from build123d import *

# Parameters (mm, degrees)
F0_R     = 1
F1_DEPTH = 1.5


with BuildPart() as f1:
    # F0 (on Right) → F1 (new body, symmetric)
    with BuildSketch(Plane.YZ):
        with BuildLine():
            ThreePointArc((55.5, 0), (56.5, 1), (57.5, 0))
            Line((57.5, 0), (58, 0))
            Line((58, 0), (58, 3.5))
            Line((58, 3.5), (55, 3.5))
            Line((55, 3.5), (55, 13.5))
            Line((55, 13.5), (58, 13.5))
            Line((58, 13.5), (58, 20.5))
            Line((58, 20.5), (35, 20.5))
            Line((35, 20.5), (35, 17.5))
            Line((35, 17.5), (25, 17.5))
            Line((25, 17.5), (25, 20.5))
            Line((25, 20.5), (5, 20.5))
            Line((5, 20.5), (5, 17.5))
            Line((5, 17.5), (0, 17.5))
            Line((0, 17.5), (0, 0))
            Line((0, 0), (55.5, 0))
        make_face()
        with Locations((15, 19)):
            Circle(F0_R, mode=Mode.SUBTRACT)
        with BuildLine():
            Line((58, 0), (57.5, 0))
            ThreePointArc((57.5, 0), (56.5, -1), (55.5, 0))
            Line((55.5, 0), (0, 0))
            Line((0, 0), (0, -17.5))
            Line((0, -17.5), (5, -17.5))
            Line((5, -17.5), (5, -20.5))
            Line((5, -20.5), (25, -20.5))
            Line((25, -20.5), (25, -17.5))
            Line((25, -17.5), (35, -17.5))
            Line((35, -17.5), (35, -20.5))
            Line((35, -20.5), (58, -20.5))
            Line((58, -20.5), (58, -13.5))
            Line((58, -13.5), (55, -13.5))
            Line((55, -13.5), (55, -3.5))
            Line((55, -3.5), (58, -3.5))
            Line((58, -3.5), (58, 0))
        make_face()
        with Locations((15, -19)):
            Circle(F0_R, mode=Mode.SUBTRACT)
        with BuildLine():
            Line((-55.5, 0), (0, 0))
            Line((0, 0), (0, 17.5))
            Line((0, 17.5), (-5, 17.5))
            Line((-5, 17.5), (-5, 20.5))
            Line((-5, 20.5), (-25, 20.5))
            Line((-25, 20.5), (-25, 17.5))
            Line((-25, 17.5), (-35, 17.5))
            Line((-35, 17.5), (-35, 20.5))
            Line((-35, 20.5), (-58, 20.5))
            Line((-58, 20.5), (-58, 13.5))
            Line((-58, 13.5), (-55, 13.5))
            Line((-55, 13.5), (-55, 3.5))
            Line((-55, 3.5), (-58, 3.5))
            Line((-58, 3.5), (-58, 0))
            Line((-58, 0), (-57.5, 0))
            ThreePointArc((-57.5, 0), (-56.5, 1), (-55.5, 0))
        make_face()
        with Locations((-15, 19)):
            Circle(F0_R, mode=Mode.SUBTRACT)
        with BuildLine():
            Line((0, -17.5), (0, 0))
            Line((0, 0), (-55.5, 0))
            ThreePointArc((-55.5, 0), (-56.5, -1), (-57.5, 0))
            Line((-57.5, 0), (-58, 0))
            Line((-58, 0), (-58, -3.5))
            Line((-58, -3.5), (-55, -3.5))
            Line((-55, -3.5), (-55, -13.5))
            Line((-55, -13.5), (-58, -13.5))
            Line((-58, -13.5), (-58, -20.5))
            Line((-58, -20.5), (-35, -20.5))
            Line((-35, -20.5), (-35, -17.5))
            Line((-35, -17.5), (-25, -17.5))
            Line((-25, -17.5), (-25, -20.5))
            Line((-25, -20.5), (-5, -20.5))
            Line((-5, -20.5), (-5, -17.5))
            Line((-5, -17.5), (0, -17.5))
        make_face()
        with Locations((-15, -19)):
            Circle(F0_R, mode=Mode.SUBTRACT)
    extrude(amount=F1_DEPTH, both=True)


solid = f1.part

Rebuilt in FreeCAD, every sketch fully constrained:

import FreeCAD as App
import Part
import Sketcher
Q = App.Units.Quantity

doc = App.newDocument("Part")
body = doc.addObject("PartDesign::Body", "Body")

# Sketch on YZ plane
sketch1 = doc.addObject("Sketcher::SketchObject", "Sketch")
body.addObject(sketch1)
sketch1.AttachmentSupport = (doc.YZ_Plane, [""])
sketch1.MapMode = "FlatFace"
sketch1.addGeometry(Part.LineSegment(App.Vector(5, -17.5, 0), App.Vector(5, -20.5, 0)), False)
sketch1.addGeometry(Part.LineSegment(App.Vector(5, -20.5, 0), App.Vector(25, -20.5, 0)), False)
sketch1.addGeometry(Part.LineSegment(App.Vector(25, -20.5, 0), App.Vector(25, -17.5, 0)), False)
sketch1.addGeometry(Part.LineSegment(App.Vector(25, -17.5, 0), App.Vector(35, -17.5, 0)), False)
sketch1.addGeometry(Part.LineSegment(App.Vector(35, -17.5, 0), App.Vector(35, -20.5, 0)), False)
sketch1.addGeometry(Part.LineSegment(App.Vector(35, -20.5, 0), App.Vector(58, -20.5, 0)), False)
sketch1.addGeometry(Part.LineSegment(App.Vector(58, -20.5, 0), App.Vector(58, -13.5, 0)), False)
sketch1.addGeometry(Part.LineSegment(App.Vector(58, -13.5, 0), App.Vector(55, -13.5, 0)), False)
sketch1.addGeometry(Part.LineSegment(App.Vector(55, -13.5, 0), App.Vector(55, -3.5, 0)), False)
sketch1.addGeometry(Part.LineSegment(App.Vector(55, -3.5, 0), App.Vector(58, -3.5, 0)), False)
sketch1.addGeometry(Part.LineSegment(App.Vector(58, -3.5, 0), App.Vector(58, 3.5, 0)), False)
sketch1.addGeometry(Part.LineSegment(App.Vector(58, 3.5, 0), App.Vector(55, 3.5, 0)), False)
sketch1.addGeometry(Part.LineSegment(App.Vector(55, 3.5, 0), App.Vector(55, 13.5, 0)), False)
sketch1.addGeometry(Part.LineSegment(App.Vector(55, 13.5, 0), App.Vector(58, 13.5, 0)), False)
sketch1.addGeometry(Part.LineSegment(App.Vector(58, 13.5, 0), App.Vector(58, 20.5, 0)), False)
sketch1.addGeometry(Part.LineSegment(App.Vector(58, 20.5, 0), App.Vector(35, 20.5, 0)), False)
sketch1.addGeometry(Part.LineSegment(App.Vector(35, 20.5, 0), App.Vector(35, 17.5, 0)), False)
sketch1.addGeometry(Part.LineSegment(App.Vector(35, 17.5, 0), App.Vector(25, 17.5, 0)), False)
sketch1.addGeometry(Part.LineSegment(App.Vector(25, 17.5, 0), App.Vector(25, 20.5, 0)), False)
sketch1.addGeometry(Part.LineSegment(App.Vector(25, 20.5, 0), App.Vector(5, 20.5, 0)), False)
sketch1.addGeometry(Part.LineSegment(App.Vector(5, 20.5, 0), App.Vector(5, 17.5, 0)), False)
sketch1.addGeometry(Part.LineSegment(App.Vector(5, 17.5, 0), App.Vector(-5, 17.5, 0)), False)
sketch1.addGeometry(Part.LineSegment(App.Vector(-5, 17.5, 0), App.Vector(-5, 20.5, 0)), False)
sketch1.addGeometry(Part.LineSegment(App.Vector(-5, 20.5, 0), App.Vector(-25, 20.5, 0)), False)
sketch1.addGeometry(Part.LineSegment(App.Vector(-25, 20.5, 0), App.Vector(-25, 17.5, 0)), False)
sketch1.addGeometry(Part.LineSegment(App.Vector(-25, 17.5, 0), App.Vector(-35, 17.5, 0)), False)
sketch1.addGeometry(Part.LineSegment(App.Vector(-35, 17.5, 0), App.Vector(-35, 20.5, 0)), False)
sketch1.addGeometry(Part.LineSegment(App.Vector(-35, 20.5, 0), App.Vector(-58, 20.5, 0)), False)
sketch1.addGeometry(Part.LineSegment(App.Vector(-58, 20.5, 0), App.Vector(-58, 13.5, 0)), False)
sketch1.addGeometry(Part.LineSegment(App.Vector(-58, 13.5, 0), App.Vector(-55, 13.5, 0)), False)
sketch1.addGeometry(Part.LineSegment(App.Vector(-55, 13.5, 0), App.Vector(-55, 3.5, 0)), False)
sketch1.addGeometry(Part.LineSegment(App.Vector(-55, 3.5, 0), App.Vector(-58, 3.5, 0)), False)
sketch1.addGeometry(Part.LineSegment(App.Vector(-58, 3.5, 0), App.Vector(-58, -3.5, 0)), False)
sketch1.addGeometry(Part.LineSegment(App.Vector(-58, -3.5, 0), App.Vector(-55, -3.5, 0)), False)
sketch1.addGeometry(Part.LineSegment(App.Vector(-55, -3.5, 0), App.Vector(-55, -13.5, 0)), False)
sketch1.addGeometry(Part.LineSegment(App.Vector(-55, -13.5, 0), App.Vector(-58, -13.5, 0)), False)
sketch1.addGeometry(Part.LineSegment(App.Vector(-58, -13.5, 0), App.Vector(-58, -20.5, 0)), False)
sketch1.addGeometry(Part.LineSegment(App.Vector(-58, -20.5, 0), App.Vector(-35, -20.5, 0)), False)
sketch1.addGeometry(Part.LineSegment(App.Vector(-35, -20.5, 0), App.Vector(-35, -17.5, 0)), False)
sketch1.addGeometry(Part.LineSegment(App.Vector(-35, -17.5, 0), App.Vector(-25, -17.5, 0)), False)
sketch1.addGeometry(Part.LineSegment(App.Vector(-25, -17.5, 0), App.Vector(-25, -20.5, 0)), False)
sketch1.addGeometry(Part.LineSegment(App.Vector(-25, -20.5, 0), App.Vector(-5, -20.5, 0)), False)
sketch1.addGeometry(Part.LineSegment(App.Vector(-5, -20.5, 0), App.Vector(-5, -17.5, 0)), False)
sketch1.addGeometry(Part.LineSegment(App.Vector(-5, -17.5, 0), App.Vector(5, -17.5, 0)), False)
sketch1.addGeometry(Part.Circle(App.Vector(-15, -19, 0), App.Vector(0, 0, 1), 1), False)
sketch1.addGeometry(Part.Circle(App.Vector(15, -19, 0), App.Vector(0, 0, 1), 1), False)
sketch1.addGeometry(Part.Circle(App.Vector(-56.5, 0, 0), App.Vector(0, 0, 1), 1), False)
sketch1.addGeometry(Part.Circle(App.Vector(-15, 19, 0), App.Vector(0, 0, 1), 1), False)
sketch1.addGeometry(Part.Circle(App.Vector(56.5, 0, 0), App.Vector(0, 0, 1), 1), False)
sketch1.addGeometry(Part.Circle(App.Vector(15, 19, 0), App.Vector(0, 0, 1), 1), False)
sketch1.addConstraint(Sketcher.Constraint("Coincident", 0, 2, 1, 1))
sketch1.addConstraint(Sketcher.Constraint("Coincident", 1, 2, 2, 1))
sketch1.addConstraint(Sketcher.Constraint("Coincident", 2, 2, 3, 1))
sketch1.addConstraint(Sketcher.Constraint("Coincident", 3, 2, 4, 1))
sketch1.addConstraint(Sketcher.Constraint("Coincident", 4, 2, 5, 1))
sketch1.addConstraint(Sketcher.Constraint("Coincident", 5, 2, 6, 1))
sketch1.addConstraint(Sketcher.Constraint("Coincident", 6, 2, 7, 1))
sketch1.addConstraint(Sketcher.Constraint("Coincident", 7, 2, 8, 1))
sketch1.addConstraint(Sketcher.Constraint("Coincident", 8, 2, 9, 1))
sketch1.addConstraint(Sketcher.Constraint("Coincident", 9, 2, 10, 1))
sketch1.addConstraint(Sketcher.Constraint("Coincident", 10, 2, 11, 1))
sketch1.addConstraint(Sketcher.Constraint("Coincident", 11, 2, 12, 1))
sketch1.addConstraint(Sketcher.Constraint("Coincident", 12, 2, 13, 1))
sketch1.addConstraint(Sketcher.Constraint("Coincident", 13, 2, 14, 1))
sketch1.addConstraint(Sketcher.Constraint("Coincident", 14, 2, 15, 1))
sketch1.addConstraint(Sketcher.Constraint("Coincident", 15, 2, 16, 1))
sketch1.addConstraint(Sketcher.Constraint("Coincident", 16, 2, 17, 1))
sketch1.addConstraint(Sketcher.Constraint("Coincident", 17, 2, 18, 1))
sketch1.addConstraint(Sketcher.Constraint("Coincident", 18, 2, 19, 1))
sketch1.addConstraint(Sketcher.Constraint("Coincident", 19, 2, 20, 1))
sketch1.addConstraint(Sketcher.Constraint("Coincident", 20, 2, 21, 1))
sketch1.addConstraint(Sketcher.Constraint("Coincident", 21, 2, 22, 1))
sketch1.addConstraint(Sketcher.Constraint("Coincident", 22, 2, 23, 1))
sketch1.addConstraint(Sketcher.Constraint("Coincident", 23, 2, 24, 1))
sketch1.addConstraint(Sketcher.Constraint("Coincident", 24, 2, 25, 1))
sketch1.addConstraint(Sketcher.Constraint("Coincident", 25, 2, 26, 1))
sketch1.addConstraint(Sketcher.Constraint("Coincident", 26, 2, 27, 1))
sketch1.addConstraint(Sketcher.Constraint("Coincident", 27, 2, 28, 1))
sketch1.addConstraint(Sketcher.Constraint("Coincident", 28, 2, 29, 1))
sketch1.addConstraint(Sketcher.Constraint("Coincident", 29, 2, 30, 1))
sketch1.addConstraint(Sketcher.Constraint("Coincident", 30, 2, 31, 1))
sketch1.addConstraint(Sketcher.Constraint("Coincident", 31, 2, 32, 1))
sketch1.addConstraint(Sketcher.Constraint("Coincident", 32, 2, 33, 1))
sketch1.addConstraint(Sketcher.Constraint("Coincident", 33, 2, 34, 1))
sketch1.addConstraint(Sketcher.Constraint("Coincident", 34, 2, 35, 1))
sketch1.addConstraint(Sketcher.Constraint("Coincident", 35, 2, 36, 1))
sketch1.addConstraint(Sketcher.Constraint("Coincident", 36, 2, 37, 1))
sketch1.addConstraint(Sketcher.Constraint("Coincident", 37, 2, 38, 1))
sketch1.addConstraint(Sketcher.Constraint("Coincident", 38, 2, 39, 1))
sketch1.addConstraint(Sketcher.Constraint("Coincident", 39, 2, 40, 1))
sketch1.addConstraint(Sketcher.Constraint("Coincident", 40, 2, 41, 1))
sketch1.addConstraint(Sketcher.Constraint("Coincident", 41, 2, 42, 1))
sketch1.addConstraint(Sketcher.Constraint("Coincident", 42, 2, 43, 1))
sketch1.addConstraint(Sketcher.Constraint("Coincident", 43, 2, 0, 1))
sketch1.addConstraint(Sketcher.Constraint("Vertical", 0))
sketch1.addConstraint(Sketcher.Constraint("Horizontal", 1))
sketch1.addConstraint(Sketcher.Constraint("Vertical", 2))
sketch1.addConstraint(Sketcher.Constraint("Horizontal", 3))
sketch1.addConstraint(Sketcher.Constraint("Vertical", 4))
sketch1.addConstraint(Sketcher.Constraint("Horizontal", 5))
sketch1.addConstraint(Sketcher.Constraint("Vertical", 6))
sketch1.addConstraint(Sketcher.Constraint("Horizontal", 7))
sketch1.addConstraint(Sketcher.Constraint("Vertical", 8))
sketch1.addConstraint(Sketcher.Constraint("Horizontal", 9))
sketch1.addConstraint(Sketcher.Constraint("Vertical", 10))
sketch1.addConstraint(Sketcher.Constraint("Horizontal", 11))
sketch1.addConstraint(Sketcher.Constraint("Vertical", 12))
sketch1.addConstraint(Sketcher.Constraint("Horizontal", 13))
sketch1.addConstraint(Sketcher.Constraint("Vertical", 14))
sketch1.addConstraint(Sketcher.Constraint("Horizontal", 15))
sketch1.addConstraint(Sketcher.Constraint("Vertical", 16))
sketch1.addConstraint(Sketcher.Constraint("Horizontal", 17))
sketch1.addConstraint(Sketcher.Constraint("Vertical", 18))
sketch1.addConstraint(Sketcher.Constraint("Horizontal", 19))
sketch1.addConstraint(Sketcher.Constraint("Vertical", 20))
sketch1.addConstraint(Sketcher.Constraint("Horizontal", 21))
sketch1.addConstraint(Sketcher.Constraint("Vertical", 22))
sketch1.addConstraint(Sketcher.Constraint("Horizontal", 23))
sketch1.addConstraint(Sketcher.Constraint("Vertical", 24))
sketch1.addConstraint(Sketcher.Constraint("Horizontal", 25))
sketch1.addConstraint(Sketcher.Constraint("Vertical", 26))
sketch1.addConstraint(Sketcher.Constraint("Horizontal", 27))
sketch1.addConstraint(Sketcher.Constraint("Vertical", 28))
sketch1.addConstraint(Sketcher.Constraint("Horizontal", 29))
sketch1.addConstraint(Sketcher.Constraint("Vertical", 30))
sketch1.addConstraint(Sketcher.Constraint("Horizontal", 31))
sketch1.addConstraint(Sketcher.Constraint("Vertical", 32))
sketch1.addConstraint(Sketcher.Constraint("Horizontal", 33))
sketch1.addConstraint(Sketcher.Constraint("Vertical", 34))
sketch1.addConstraint(Sketcher.Constraint("Horizontal", 35))
sketch1.addConstraint(Sketcher.Constraint("Vertical", 36))
sketch1.addConstraint(Sketcher.Constraint("Horizontal", 37))
sketch1.addConstraint(Sketcher.Constraint("Vertical", 38))
sketch1.addConstraint(Sketcher.Constraint("Horizontal", 39))
sketch1.addConstraint(Sketcher.Constraint("Vertical", 40))
sketch1.addConstraint(Sketcher.Constraint("Horizontal", 41))
sketch1.addConstraint(Sketcher.Constraint("Vertical", 42))
sketch1.addConstraint(Sketcher.Constraint("Horizontal", 43))
sketch1.addConstraint(Sketcher.Constraint("Equal", 44, 45))
sketch1.addConstraint(Sketcher.Constraint("Equal", 45, 46))
sketch1.addConstraint(Sketcher.Constraint("Equal", 46, 47))
sketch1.addConstraint(Sketcher.Constraint("Equal", 47, 48))
sketch1.addConstraint(Sketcher.Constraint("Equal", 48, 49))
sketch1.addConstraint(Sketcher.Constraint("Symmetric", 45, 3, 47, 3, -1, 1))
sketch1.addConstraint(Sketcher.Constraint("Symmetric", 46, 3, 48, 3, -1, 1))
sketch1.addConstraint(Sketcher.Constraint("Symmetric", 44, 3, 49, 3, -1, 1))
sketch1.addConstraint(Sketcher.Constraint("Symmetric", 0, 2, 22, 2, -1, 1))
sketch1.addConstraint(Sketcher.Constraint("Symmetric", 2, 2, 24, 2, -1, 1))
sketch1.addConstraint(Sketcher.Constraint("Symmetric", 4, 2, 26, 2, -1, 1))
sketch1.addConstraint(Sketcher.Constraint("Symmetric", 6, 2, 28, 2, -1, 1))
sketch1.addConstraint(Sketcher.Constraint("Symmetric", 8, 2, 30, 2, -1, 1))
sketch1.addConstraint(Sketcher.Constraint("Symmetric", 10, 2, 32, 2, -1, 1))
sketch1.addConstraint(Sketcher.Constraint("Symmetric", 12, 2, 34, 2, -1, 1))
sketch1.addConstraint(Sketcher.Constraint("Symmetric", 14, 2, 36, 2, -1, 1))
sketch1.addConstraint(Sketcher.Constraint("Symmetric", 16, 2, 38, 2, -1, 1))
sketch1.addConstraint(Sketcher.Constraint("Symmetric", 18, 2, 40, 2, -1, 1))
sketch1.addConstraint(Sketcher.Constraint("Symmetric", 20, 2, 42, 2, -1, 1))
sketch1.addConstraint(Sketcher.Constraint("Symmetric", 44, 3, 45, 3, -2))
sketch1.addConstraint(Sketcher.Constraint("Symmetric", 19, 2, 22, 2, -2))
sketch1.addConstraint(Sketcher.Constraint("Symmetric", 17, 2, 24, 2, -2))
sketch1.addConstraint(Sketcher.Constraint("Symmetric", 15, 2, 26, 2, -2))
sketch1.addConstraint(Sketcher.Constraint("Symmetric", 13, 2, 28, 2, -2))
sketch1.addConstraint(Sketcher.Constraint("Symmetric", 11, 2, 30, 2, -2))
sketch1.addConstraint(Sketcher.Constraint("PointOnObject", 46, 3, -1))
sketch1.addConstraint(Sketcher.Constraint("Horizontal", 1, 2, 4, 2))
sketch1.addConstraint(Sketcher.Constraint("Horizontal", 17, 2, 20, 2))
sketch1.addConstraint(Sketcher.Constraint("Vertical", 6, 2, 9, 2))
sketch1.addConstraint(Sketcher.Constraint("Equal", 17, 21))
sketch1.addConstraint(Sketcher.Constraint("Equal", 35, 0))
sketch1.addConstraint(Sketcher.Constraint("Equal", 43, 8))
sketch1.addConstraint(Sketcher.Constraint("Equal", 6, 10))
sketch1.addConstraint(Sketcher.Constraint("Diameter", 44, Q("2 mm")))
sketch1.addConstraint(Sketcher.Constraint("DistanceX", 1, 1, 1, 2, Q("20 mm")))
sketch1.addConstraint(Sketcher.Constraint("DistanceX", 3, 1, 3, 2, Q("10 mm")))
sketch1.addConstraint(Sketcher.Constraint("DistanceX", 5, 1, 5, 2, Q("23 mm")))
sketch1.addConstraint(Sketcher.Constraint("DistanceX", 7, 2, 7, 1, Q("3 mm")))
sketch1.addConstraint(Sketcher.Constraint("DistanceY", 6, 1, 6, 2, Q("7 mm")))
sketch1.addConstraint(Sketcher.Constraint("DistanceX", 44, 3, -1, 1, Q("15 mm")))
sketch1.addConstraint(Sketcher.Constraint("DistanceY", 44, 3, -1, 1, Q("19 mm")))
sketch1.addConstraint(Sketcher.Constraint("DistanceX", 46, 3, 48, 3, Q("113 mm")))
pad1 = doc.addObject("PartDesign::Pad", "Pad")
body.addObject(pad1)
pad1.Profile = sketch1
pad1.Length = 3
pad1.Midplane = True

doc.recompute()
